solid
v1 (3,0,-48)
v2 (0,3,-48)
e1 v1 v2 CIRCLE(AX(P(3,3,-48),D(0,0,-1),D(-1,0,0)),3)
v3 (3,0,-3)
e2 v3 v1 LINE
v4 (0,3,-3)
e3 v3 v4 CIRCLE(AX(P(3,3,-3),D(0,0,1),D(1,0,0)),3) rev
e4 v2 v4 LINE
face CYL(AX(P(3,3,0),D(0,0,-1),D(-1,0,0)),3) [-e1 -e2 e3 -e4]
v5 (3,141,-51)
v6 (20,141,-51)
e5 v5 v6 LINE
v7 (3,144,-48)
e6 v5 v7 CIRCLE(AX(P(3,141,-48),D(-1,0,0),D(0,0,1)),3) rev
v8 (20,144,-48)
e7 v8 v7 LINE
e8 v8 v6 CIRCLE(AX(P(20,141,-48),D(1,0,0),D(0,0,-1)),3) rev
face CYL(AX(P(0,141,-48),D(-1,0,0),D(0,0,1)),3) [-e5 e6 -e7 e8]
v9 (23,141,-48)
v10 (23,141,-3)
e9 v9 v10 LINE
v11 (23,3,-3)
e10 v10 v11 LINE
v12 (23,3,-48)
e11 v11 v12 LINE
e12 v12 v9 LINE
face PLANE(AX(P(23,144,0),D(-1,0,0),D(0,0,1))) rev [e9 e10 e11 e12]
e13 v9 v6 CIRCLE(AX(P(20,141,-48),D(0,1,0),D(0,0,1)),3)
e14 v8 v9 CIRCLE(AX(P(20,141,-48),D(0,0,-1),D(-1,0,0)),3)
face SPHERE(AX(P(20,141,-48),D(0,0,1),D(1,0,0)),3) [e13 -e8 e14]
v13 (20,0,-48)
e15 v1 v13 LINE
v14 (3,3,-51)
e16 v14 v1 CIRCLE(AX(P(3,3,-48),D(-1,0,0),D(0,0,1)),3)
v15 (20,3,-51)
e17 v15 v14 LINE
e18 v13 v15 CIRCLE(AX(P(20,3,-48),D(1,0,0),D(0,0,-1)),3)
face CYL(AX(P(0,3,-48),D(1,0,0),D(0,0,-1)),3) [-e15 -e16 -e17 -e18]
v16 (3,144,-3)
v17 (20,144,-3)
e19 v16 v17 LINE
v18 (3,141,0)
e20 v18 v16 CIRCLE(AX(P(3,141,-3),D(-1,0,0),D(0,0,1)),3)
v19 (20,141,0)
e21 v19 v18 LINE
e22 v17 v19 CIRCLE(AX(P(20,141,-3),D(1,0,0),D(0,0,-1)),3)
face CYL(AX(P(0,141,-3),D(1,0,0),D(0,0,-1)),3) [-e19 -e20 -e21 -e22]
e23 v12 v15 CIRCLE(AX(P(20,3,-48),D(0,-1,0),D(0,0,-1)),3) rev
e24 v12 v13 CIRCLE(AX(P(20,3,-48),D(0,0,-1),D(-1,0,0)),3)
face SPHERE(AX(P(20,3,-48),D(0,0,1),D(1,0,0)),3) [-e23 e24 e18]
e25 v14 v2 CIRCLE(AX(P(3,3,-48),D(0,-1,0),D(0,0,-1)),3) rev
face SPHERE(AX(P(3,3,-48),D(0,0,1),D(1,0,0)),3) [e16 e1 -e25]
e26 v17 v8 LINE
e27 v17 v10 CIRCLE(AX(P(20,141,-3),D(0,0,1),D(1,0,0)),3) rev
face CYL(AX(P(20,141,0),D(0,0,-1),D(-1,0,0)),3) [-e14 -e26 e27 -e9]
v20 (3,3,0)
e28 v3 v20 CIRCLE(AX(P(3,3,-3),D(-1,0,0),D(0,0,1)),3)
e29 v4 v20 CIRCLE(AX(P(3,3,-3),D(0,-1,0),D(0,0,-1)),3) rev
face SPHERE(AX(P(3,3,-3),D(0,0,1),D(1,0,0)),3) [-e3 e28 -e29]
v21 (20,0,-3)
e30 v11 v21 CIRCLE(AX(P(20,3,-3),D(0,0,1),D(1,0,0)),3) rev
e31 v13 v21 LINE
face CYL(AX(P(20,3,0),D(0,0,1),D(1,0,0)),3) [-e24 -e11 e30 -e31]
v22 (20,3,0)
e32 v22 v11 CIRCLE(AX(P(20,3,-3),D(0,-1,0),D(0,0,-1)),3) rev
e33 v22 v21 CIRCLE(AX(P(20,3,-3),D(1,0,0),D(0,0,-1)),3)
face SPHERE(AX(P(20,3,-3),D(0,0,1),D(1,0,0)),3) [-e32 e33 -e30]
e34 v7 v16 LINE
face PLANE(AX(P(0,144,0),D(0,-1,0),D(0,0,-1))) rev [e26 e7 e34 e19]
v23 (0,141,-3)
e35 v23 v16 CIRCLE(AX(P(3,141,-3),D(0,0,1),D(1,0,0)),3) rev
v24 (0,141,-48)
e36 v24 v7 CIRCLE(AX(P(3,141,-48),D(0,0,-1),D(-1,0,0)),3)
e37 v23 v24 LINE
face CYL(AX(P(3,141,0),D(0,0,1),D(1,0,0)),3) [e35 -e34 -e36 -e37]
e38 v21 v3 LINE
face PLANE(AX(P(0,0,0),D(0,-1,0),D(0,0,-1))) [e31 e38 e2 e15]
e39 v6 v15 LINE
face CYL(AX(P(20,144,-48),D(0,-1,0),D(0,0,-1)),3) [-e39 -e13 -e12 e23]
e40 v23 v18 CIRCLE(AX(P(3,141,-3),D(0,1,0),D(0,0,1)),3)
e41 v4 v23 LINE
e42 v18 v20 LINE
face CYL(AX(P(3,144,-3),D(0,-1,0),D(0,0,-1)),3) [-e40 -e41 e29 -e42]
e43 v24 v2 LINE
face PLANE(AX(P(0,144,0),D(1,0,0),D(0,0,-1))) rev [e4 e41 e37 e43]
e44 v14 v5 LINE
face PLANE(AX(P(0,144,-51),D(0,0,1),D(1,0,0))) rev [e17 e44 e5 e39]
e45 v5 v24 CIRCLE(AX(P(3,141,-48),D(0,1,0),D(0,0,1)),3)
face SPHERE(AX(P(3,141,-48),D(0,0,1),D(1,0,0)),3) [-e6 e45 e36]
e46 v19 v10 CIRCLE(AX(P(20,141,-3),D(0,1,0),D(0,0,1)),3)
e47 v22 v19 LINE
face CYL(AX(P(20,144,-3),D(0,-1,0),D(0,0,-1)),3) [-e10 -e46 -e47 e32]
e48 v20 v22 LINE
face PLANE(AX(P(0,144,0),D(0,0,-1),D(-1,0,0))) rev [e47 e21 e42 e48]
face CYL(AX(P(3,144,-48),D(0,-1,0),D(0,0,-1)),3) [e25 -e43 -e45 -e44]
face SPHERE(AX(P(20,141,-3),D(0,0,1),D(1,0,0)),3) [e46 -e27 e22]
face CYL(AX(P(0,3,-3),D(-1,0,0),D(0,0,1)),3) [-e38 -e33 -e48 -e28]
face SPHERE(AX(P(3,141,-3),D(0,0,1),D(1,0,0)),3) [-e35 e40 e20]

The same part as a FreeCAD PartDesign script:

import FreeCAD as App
import Part
import Sketcher

V = App.Vector

doc = App.newDocument("Part")
body = doc.addObject("PartDesign::Body", "Body")

sketch1 = doc.addObject("Sketcher::SketchObject", "Sketch")
body.addObject(sketch1)
sketch1.AttachmentSupport = (doc.XZ_Plane, [""])
sketch1.MapMode = "FlatFace"
sketch1.addGeometry(Part.LineSegment(V(0, -51, 0), V(0, 0, 0)), False)
sketch1.addGeometry(Part.LineSegment(V(0, 0, 0), V(23, 0, 0)), False)
sketch1.addGeometry(Part.LineSegment(V(23, 0, 0), V(23, -51, 0)), False)
sketch1.addGeometry(Part.LineSegment(V(23, -51, 0), V(0, -51, 0)), False)
sketch1.addConstraint(Sketcher.Constraint("Coincident", 0, 2, 1, 1))
sketch1.addConstraint(Sketcher.Constraint("Coincident", 1, 2, 2, 1))
sketch1.addConstraint(Sketcher.Constraint("Coincident", 2, 2, 3, 1))
sketch1.addConstraint(Sketcher.Constraint("Coincident", 3, 2, 0, 1))
sketch1.addConstraint(Sketcher.Constraint("Vertical", 0))
sketch1.addConstraint(Sketcher.Constraint("Horizontal", 1))
sketch1.addConstraint(Sketcher.Constraint("Vertical", 2))
sketch1.addConstraint(Sketcher.Constraint("Horizontal", 3))
sketch1.addConstraint(Sketcher.Constraint("Coincident", 0, 2, -1, 1))
sketch1.addConstraint(Sketcher.Constraint("DistanceX", 1, 1, 1, 2, 23.0))
sketch1.addConstraint(Sketcher.Constraint("DistanceY", 0, 1, 0, 2, 51.0))
pad1 = doc.addObject("PartDesign::Pad", "Pad")
body.addObject(pad1)
pad1.Profile = sketch1
pad1.Length = 144
pad1.Reversed = True
doc.recompute()

fillet = doc.addObject("PartDesign::Fillet", "Fillet")
body.addObject(fillet)
fillet.Base = (pad1, ["Edge1"])
fillet.UseAllEdges = True
fillet.Radius = 3

doc.recompute()
